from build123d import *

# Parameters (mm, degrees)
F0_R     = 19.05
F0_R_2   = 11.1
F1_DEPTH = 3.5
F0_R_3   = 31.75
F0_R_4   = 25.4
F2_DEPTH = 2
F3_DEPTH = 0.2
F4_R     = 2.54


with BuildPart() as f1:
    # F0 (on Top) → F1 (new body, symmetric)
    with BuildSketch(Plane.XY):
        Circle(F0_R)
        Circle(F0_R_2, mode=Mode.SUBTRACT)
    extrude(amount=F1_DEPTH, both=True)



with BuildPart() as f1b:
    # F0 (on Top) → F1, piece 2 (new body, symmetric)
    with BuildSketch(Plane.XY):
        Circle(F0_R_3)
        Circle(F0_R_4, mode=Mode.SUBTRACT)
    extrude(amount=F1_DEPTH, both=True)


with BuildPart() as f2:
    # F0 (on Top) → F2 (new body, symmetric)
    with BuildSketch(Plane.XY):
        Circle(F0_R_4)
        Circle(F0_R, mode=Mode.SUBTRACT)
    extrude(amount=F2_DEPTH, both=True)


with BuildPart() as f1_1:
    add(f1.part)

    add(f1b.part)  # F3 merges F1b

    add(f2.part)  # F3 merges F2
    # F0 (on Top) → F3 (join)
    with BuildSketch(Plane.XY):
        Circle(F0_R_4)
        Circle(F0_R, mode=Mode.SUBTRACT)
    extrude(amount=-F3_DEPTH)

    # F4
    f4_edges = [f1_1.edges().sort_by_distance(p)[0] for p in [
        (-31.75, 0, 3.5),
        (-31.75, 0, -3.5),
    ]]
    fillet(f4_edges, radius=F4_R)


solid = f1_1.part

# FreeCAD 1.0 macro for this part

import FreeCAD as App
import Part
import Sketcher
from FreeCAD import Vector


def edges_at(feature, points):
    """Names of the edges that pass closest to the given points."""
    edges = feature.Shape.Edges
    near = lambda p: min(range(len(edges)), key=lambda i: edges[i].distToShape(Part.Vertex(*p))[0])
    return sorted({f"Edge{near(p) + 1}" for p in points})

doc = App.newDocument("Part")
body = doc.addObject("PartDesign::Body", "Body")

# Sketch on XY plane
sketch1 = body.newObject("Sketcher::SketchObject", "Sketch")
sketch1.AttachmentSupport = (doc.getObject("XY_Plane"), [""])
sketch1.MapMode = "FlatFace"
sketch1.addGeometry([
    Part.Circle(Vector(0, 0, 0), Vector(0, 0, 1), 19),
    Part.Circle(Vector(0, 0, 0), Vector(0, 0, 1), 11),
], False)
sketch1.addConstraint([
    Sketcher.Constraint("Coincident", 0, 3, -1, 1),
    Sketcher.Constraint("Coincident", 1, 3, -1, 1),
    Sketcher.Constraint("Diameter", 0, 38.1),
    Sketcher.Constraint("Diameter", 1, 22.2),
])
pad1 = body.newObject("PartDesign::Pad", "Pad")
pad1.Profile = sketch1
pad1.Length = 7
pad1.Midplane = True
body2 = doc.addObject("PartDesign::Body", "Body001")

# Sketch on XY plane
sketch2 = body2.newObject("Sketcher::SketchObject", "Sketch001")
sketch2.AttachmentSupport = (doc.getObject("XY_Plane001"), [""])
sketch2.MapMode = "FlatFace"
sketch2.addGeometry([
    Part.Circle(Vector(0, 0, 0), Vector(0, 0, 1), 32),
    Part.Circle(Vector(0, 0, 0), Vector(0, 0, 1), 25),
], False)
sketch2.addConstraint([
    Sketcher.Constraint("Coincident", 0, 3, -1, 1),
    Sketcher.Constraint("Coincident", 1, 3, -1, 1),
    Sketcher.Constraint("Diameter", 0, 63.5),
    Sketcher.Constraint("Diameter", 1, 50.8),
])
pad2 = body2.newObject("PartDesign::Pad", "Pad001")
pad2.Profile = sketch2
pad2.Length = 7
pad2.Midplane = True
body3 = doc.addObject("PartDesign::Body", "Body002")

# Sketch on XY plane
sketch3 = body3.newObject("Sketcher::SketchObject", "Sketch002")
sketch3.AttachmentSupport = (doc.getObject("XY_Plane002"), [""])
sketch3.MapMode = "FlatFace"
sketch3.addGeometry([
    Part.Circle(Vector(0, 0, 0), Vector(0, 0, 1), 25),
    Part.Circle(Vector(0, 0, 0), Vector(0, 0, 1), 19),
], False)
sketch3.addConstraint([
    Sketcher.Constraint("Coincident", 0, 3, -1, 1),
    Sketcher.Constraint("Coincident", 1, 3, -1, 1),
    Sketcher.Constraint("Diameter", 0, 50.8),
    Sketcher.Constraint("Diameter", 1, 38.1),
])
pad3 = body3.newObject("PartDesign::Pad", "Pad002")
pad3.Profile = sketch3
pad3.Length = 4
pad3.Midplane = True
body.AllowCompound = True
doc.recompute()

boolean = body.newObject("PartDesign::Boolean", "Boolean")
boolean.Type = "Fuse"
boolean.addObjects([body2])
doc.recompute()

boolean2 = body.newObject("PartDesign::Boolean", "Boolean001")
boolean2.Type = "Fuse"
boolean2.addObjects([body3])

# Sketch on XY plane
sketch4 = body.newObject("Sketcher::SketchObject", "Sketch003")
sketch4.AttachmentSupport = (doc.getObject("XY_Plane"), [""])
sketch4.MapMode = "FlatFace"
sketch4.addGeometry([
    Part.Circle(Vector(0, 0, 0), Vector(0, 0, 1), 25),
    Part.Circle(Vector(0, 0, 0), Vector(0, 0, 1), 19),
], False)
sketch4.addConstraint([
    Sketcher.Constraint("Coincident", 0, 3, -1, 1),
    Sketcher.Constraint("Coincident", 1, 3, -1, 1),
    Sketcher.Constraint("Diameter", 0, 50.8),
    Sketcher.Constraint("Diameter", 1, 38.1),
])
pad4 = body.newObject("PartDesign::Pad", "Pad003")
pad4.Profile = sketch4
pad4.Length = 0.2
pad4.Reversed = True
doc.recompute()

fillet = body.newObject("PartDesign::Fillet", "Fillet")
fillet.Base = (pad4, edges_at(pad4, [(-31.75, 0, 3.5), (-31.75, 0, -3.5)]))
fillet.Radius = 2.54

doc.recompute()
